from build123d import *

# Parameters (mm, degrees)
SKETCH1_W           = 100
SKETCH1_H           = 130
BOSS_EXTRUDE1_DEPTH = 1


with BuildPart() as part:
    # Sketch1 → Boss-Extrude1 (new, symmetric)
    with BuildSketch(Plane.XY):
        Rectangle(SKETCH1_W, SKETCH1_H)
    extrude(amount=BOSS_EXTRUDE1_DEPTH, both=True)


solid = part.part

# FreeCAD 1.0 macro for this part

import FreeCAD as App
import Part
import Sketcher


def add_polygon(sketch, points):
    """Adds a closed chain of lines whose ends are joined by coincident constraints."""
    first, n = sketch.GeometryCount, len(points)
    for a, b in zip(points, points[1:] + points[:1]):
        sketch.addGeometry(Part.LineSegment(App.Vector(*a, 0), App.Vector(*b, 0)), False)
    for i in range(n):
        sketch.addConstraint(Sketcher.Constraint("Coincident", first + i, 2, first + (i + 1) % n, 1))

doc = App.newDocument("Part")
params = doc.addObject("Spreadsheet::Sheet", "Params")
for row, (alias, value) in enumerate([
    ("sketch1_width", "100 mm"),
    ("sketch1_height", "130 mm"),
    ("pad1_length", "2 mm"),
], start=1):
    params.set(f"A{row}", alias)
    params.set(f"B{row}", "=" + value)
    params.setAlias(f"B{row}", alias)

body = doc.addObject("PartDesign::Body", "Body")

sketch1 = body.newObject("Sketcher::SketchObject", "Sketch")
sketch1.AttachmentSupport = (doc.getObject("XY_Plane"), [""])
sketch1.MapMode = "FlatFace"
add_polygon(sketch1, [(-50, 65), (-50, -65), (50, -65), (50, 65)])
sketch1.addConstraint([
    Sketcher.Constraint("Vertical", 0),
    Sketcher.Constraint("Horizontal", 1),
    Sketcher.Constraint("Vertical", 2),
    Sketcher.Constraint("Horizontal", 3),
    Sketcher.Constraint("Symmetric", 0, 2, 2, 2, -1, 1),
    Sketcher.Constraint("DistanceX", 1, 1, 1, 2, 100.0),
    Sketcher.Constraint("DistanceY", 0, 2, 0, 1, 130.0),
])
sketch1.setExpression("Constraints[9]", "Params.sketch1_width")
sketch1.setExpression("Constraints[10]", "Params.sketch1_height")
pad1 = body.newObject("PartDesign::Pad", "Pad")
pad1.Profile = sketch1
pad1.setExpression("Length", "Params.pad1_length")
pad1.Midplane = True

doc.recompute()
